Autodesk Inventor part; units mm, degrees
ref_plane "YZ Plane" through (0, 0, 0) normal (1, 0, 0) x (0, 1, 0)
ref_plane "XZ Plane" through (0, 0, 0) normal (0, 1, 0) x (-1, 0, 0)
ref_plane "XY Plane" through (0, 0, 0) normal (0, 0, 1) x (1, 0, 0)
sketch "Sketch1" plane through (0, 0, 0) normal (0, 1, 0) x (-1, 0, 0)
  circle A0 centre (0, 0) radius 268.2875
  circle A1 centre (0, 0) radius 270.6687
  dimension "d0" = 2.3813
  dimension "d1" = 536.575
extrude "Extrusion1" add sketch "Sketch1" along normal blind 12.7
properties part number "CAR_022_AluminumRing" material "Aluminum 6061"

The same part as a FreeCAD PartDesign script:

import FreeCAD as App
import Part
import Sketcher

V = App.Vector
Q = App.Units.Quantity

doc = App.newDocument("Part")
params = doc.addObject("Spreadsheet::Sheet", "Params")
for row, (alias, value) in enumerate([
    ("sketch1_diameter", "21.125 in"),
    ("sketch1_diameter2", "21.3125 in"),
    ("pad1_length", "0.5 in"),
], start=1):
    params.set(f"A{row}", alias)
    params.set(f"B{row}", "=" + value)
    params.setAlias(f"B{row}", alias)

body = doc.addObject("PartDesign::Body", "Body")

sketch1 = body.newObject("Sketcher::SketchObject", "Sketch")
sketch1.AttachmentSupport = (doc.getObject("XZ_Plane"), [""])
sketch1.MapMode = "FlatFace"
sketch1.addGeometry([
    Part.Circle(V(0, 0, 0), V(0, 0, 1), 271),
    Part.Circle(V(0, 0, 0), V(0, 0, 1), 268),
], False)
sketch1.addConstraint([
    Sketcher.Constraint("Coincident", 0, 3, -1, 1),
    Sketcher.Constraint("Coincident", 1, 3, -1, 1),
    Sketcher.Constraint("Diameter", 1, Q("21.125 in")),
    Sketcher.Constraint("Diameter", 0, Q("21.3125 in")),
])
sketch1.setExpression("Constraints[2]", "Params.sketch1_diameter")
sketch1.setExpression("Constraints[3]", "Params.sketch1_diameter2")
pad1 = body.newObject("PartDesign::Pad", "Pad")
pad1.Profile = sketch1
pad1.setExpression("Length", "Params.pad1_length")
pad1.Reversed = True

doc.recompute()
